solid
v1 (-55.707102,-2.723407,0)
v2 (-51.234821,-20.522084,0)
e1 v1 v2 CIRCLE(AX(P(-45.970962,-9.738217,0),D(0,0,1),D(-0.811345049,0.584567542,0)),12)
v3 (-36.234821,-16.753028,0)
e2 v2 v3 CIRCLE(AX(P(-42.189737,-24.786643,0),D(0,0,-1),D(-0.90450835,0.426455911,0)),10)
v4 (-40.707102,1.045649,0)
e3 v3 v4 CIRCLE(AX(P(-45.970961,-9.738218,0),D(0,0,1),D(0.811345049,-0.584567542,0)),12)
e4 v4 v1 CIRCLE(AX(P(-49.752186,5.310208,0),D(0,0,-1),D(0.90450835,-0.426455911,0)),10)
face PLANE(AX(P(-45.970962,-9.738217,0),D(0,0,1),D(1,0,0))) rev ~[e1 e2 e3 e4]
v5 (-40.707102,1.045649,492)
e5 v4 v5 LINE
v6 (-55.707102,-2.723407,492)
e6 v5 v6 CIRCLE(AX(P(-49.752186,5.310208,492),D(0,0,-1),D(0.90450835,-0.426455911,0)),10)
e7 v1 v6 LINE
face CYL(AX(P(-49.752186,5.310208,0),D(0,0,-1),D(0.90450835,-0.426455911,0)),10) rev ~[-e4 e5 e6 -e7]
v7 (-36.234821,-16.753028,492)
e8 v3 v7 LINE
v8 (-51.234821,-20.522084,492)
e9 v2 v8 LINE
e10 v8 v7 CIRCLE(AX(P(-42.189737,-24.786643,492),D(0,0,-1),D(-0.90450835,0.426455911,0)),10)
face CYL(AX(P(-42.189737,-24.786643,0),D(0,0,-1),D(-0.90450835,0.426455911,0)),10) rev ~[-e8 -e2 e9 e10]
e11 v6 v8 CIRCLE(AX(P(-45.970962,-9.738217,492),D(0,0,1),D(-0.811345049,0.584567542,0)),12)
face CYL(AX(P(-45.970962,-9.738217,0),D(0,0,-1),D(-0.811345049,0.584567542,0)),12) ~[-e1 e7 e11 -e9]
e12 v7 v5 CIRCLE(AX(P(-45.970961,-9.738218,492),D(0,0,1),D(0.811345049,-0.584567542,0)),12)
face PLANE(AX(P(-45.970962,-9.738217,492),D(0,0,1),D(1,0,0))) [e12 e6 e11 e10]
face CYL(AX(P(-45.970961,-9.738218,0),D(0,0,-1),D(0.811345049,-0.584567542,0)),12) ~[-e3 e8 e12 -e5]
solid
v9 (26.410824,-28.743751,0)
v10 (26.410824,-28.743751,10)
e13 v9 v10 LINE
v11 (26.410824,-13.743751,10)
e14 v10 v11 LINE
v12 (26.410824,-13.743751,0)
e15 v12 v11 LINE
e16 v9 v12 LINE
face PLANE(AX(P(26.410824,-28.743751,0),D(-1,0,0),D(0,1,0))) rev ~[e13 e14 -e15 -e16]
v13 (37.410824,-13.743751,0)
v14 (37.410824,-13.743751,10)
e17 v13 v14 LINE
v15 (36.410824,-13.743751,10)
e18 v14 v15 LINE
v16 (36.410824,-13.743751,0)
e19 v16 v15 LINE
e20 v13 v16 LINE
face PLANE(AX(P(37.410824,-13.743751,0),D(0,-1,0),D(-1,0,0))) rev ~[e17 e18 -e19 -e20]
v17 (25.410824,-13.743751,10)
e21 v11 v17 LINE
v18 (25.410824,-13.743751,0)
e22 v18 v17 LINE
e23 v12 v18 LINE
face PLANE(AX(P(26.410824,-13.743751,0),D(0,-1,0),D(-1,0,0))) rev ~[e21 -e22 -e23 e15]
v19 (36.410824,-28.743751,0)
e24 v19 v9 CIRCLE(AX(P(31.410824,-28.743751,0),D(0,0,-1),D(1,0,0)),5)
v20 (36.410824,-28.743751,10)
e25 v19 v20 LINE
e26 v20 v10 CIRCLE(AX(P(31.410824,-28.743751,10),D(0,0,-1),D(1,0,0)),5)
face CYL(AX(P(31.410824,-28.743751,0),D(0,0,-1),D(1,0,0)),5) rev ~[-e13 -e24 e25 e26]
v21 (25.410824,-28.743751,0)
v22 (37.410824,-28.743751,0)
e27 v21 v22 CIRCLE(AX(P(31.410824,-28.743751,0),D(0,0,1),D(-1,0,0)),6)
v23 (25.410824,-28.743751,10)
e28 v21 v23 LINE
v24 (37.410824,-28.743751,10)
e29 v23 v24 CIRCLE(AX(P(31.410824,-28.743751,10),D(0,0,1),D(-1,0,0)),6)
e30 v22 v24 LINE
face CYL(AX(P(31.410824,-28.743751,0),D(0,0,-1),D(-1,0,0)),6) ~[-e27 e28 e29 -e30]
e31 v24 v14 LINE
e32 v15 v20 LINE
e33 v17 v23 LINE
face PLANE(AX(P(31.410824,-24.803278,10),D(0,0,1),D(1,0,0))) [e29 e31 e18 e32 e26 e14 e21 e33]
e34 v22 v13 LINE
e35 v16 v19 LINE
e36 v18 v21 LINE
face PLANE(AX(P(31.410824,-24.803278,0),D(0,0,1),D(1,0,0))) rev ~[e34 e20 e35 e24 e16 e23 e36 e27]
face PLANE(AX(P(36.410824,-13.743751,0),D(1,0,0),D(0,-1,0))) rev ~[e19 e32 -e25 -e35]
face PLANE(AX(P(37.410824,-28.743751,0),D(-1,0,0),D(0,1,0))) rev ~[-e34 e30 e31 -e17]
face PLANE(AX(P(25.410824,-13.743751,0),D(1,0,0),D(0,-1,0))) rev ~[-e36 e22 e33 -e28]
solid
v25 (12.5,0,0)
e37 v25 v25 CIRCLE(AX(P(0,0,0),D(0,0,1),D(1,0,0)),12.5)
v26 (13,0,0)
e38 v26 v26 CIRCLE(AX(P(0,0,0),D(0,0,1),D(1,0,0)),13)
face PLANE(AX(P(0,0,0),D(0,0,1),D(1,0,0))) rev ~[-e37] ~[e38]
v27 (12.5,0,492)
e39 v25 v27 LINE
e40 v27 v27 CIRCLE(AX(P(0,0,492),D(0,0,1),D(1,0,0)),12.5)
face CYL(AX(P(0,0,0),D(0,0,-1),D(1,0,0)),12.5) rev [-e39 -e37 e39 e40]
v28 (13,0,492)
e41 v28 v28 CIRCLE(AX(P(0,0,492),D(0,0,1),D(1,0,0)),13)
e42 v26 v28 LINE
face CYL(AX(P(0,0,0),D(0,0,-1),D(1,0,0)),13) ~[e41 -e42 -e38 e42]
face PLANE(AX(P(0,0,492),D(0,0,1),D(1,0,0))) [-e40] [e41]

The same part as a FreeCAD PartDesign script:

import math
import FreeCAD as App
import Part
import Sketcher
Q = App.Units.Quantity

doc = App.newDocument("Part")
params = doc.addObject("Spreadsheet::Sheet", "Params")
for row, (alias, value) in enumerate([
    ("sketch1_diameter", "26 mm"),
    ("sketch1_diameter2", "25 mm"),
    ("sketch1_radius", "10 mm"),
    ("sketch1_radius2", "12 mm"),
    ("pad1_length", "492 mm"),
    ("sketch2_radius", "6 mm"),
    ("sketch2_radius2", "5 mm"),
    ("sketch2_height", "15 mm"),
    ("pad2_length", "10 mm"),
], start=1):
    params.set(f"A{row}", alias)
    params.set(f"B{row}", "=" + value)
    params.setAlias(f"B{row}", alias)

body = doc.addObject("PartDesign::Body", "Body")
body.AllowCompound = True

# Sketch on XY plane
sketch1 = doc.addObject("Sketcher::SketchObject", "Sketch")
body.addObject(sketch1)
sketch1.AttachmentSupport = (doc.XY_Plane, [""])
sketch1.MapMode = "FlatFace"
sketch1.addGeometry(Part.Circle(App.Vector(0, 0, 0), App.Vector(0, 0, 1), 13), False)
sketch1.addGeometry(Part.Circle(App.Vector(0, 0, 0), App.Vector(0, 0, 1), 12), False)
sketch1.addGeometry(Part.ArcOfCircle(Part.Circle(App.Vector(-50, 5, 0), App.Vector(0, 0, 1), 10), math.radians(-127), math.radians(-25)), False)
sketch1.addGeometry(Part.ArcOfCircle(Part.Circle(App.Vector(-46, -10, 0), App.Vector(0, 0, 1), 12), math.radians(144), math.radians(244)), False)
sketch1.addGeometry(Part.ArcOfCircle(Part.Circle(App.Vector(-42, -25, 0), App.Vector(0, 0, 1), 10), math.radians(53), math.radians(155)), False)
sketch1.addGeometry(Part.ArcOfCircle(Part.Circle(App.Vector(-46, -10, 0), App.Vector(0, 0, 1), 12), math.radians(-36), math.radians(64)), False)
sketch1.addConstraint(Sketcher.Constraint("Coincident", 2, 1, 3, 1))
sketch1.addConstraint(Sketcher.Constraint("Coincident", 3, 2, 4, 2))
sketch1.addConstraint(Sketcher.Constraint("Coincident", 4, 1, 5, 1))
sketch1.addConstraint(Sketcher.Constraint("Coincident", 5, 2, 2, 2))
sketch1.addConstraint(Sketcher.Constraint("Coincident", 0, 3, -1, 1))
sketch1.addConstraint(Sketcher.Constraint("Coincident", 1, 3, -1, 1))
sketch1.addConstraint(Sketcher.Constraint("Coincident", 5, 3, 3, 3))
sketch1.addConstraint(Sketcher.Constraint("Equal", 2, 4))
sketch1.addConstraint(Sketcher.Constraint("Equal", 3, 5))
sketch1.addConstraint(Sketcher.Constraint("Diameter", 0, Q("26 mm")))
sketch1.addConstraint(Sketcher.Constraint("Diameter", 1, Q("25 mm")))
sketch1.addConstraint(Sketcher.Constraint("Radius", 2, Q("10 mm")))
sketch1.addConstraint(Sketcher.Constraint("Radius", 3, Q("12 mm")))
sketch1.addConstraint(Sketcher.Constraint("DistanceX", 3, 2, 4, 1, Q("15 mm")))
sketch1.addConstraint(Sketcher.Constraint("DistanceX", 2, 1, 5, 2, Q("15 mm")))
sketch1.addConstraint(Sketcher.Constraint("DistanceX", 2, 1, -1, 1, Q("55.707102 mm")))
sketch1.addConstraint(Sketcher.Constraint("DistanceY", -1, 1, 2, 3, Q("5.310208 mm")))
sketch1.addConstraint(Sketcher.Constraint("DistanceX", 3, 3, -1, 1, Q("45.970962 mm")))
sketch1.addConstraint(Sketcher.Constraint("DistanceX", 3, 2, -1, 1, Q("51.234821 mm")))
sketch1.setExpression("Constraints[9]", "Params.sketch1_diameter")
sketch1.setExpression("Constraints[10]", "Params.sketch1_diameter2")
sketch1.setExpression("Constraints[11]", "Params.sketch1_radius")
sketch1.setExpression("Constraints[12]", "Params.sketch1_radius2")
pad1 = doc.addObject("PartDesign::Pad", "Pad")
body.addObject(pad1)
pad1.Profile = sketch1
pad1.setExpression("Length", "Params.pad1_length")
body2 = doc.addObject("PartDesign::Body", "Body001")

# Sketch on XY plane
sketch2 = doc.addObject("Sketcher::SketchObject", "Sketch001")
body2.addObject(sketch2)
sketch2.AttachmentSupport = (doc.getObject("XY_Plane001"), [""])
sketch2.MapMode = "FlatFace"
sketch2.addGeometry(Part.LineSegment(App.Vector(26.4, -28.7, 0), App.Vector(26.4, -13.7, 0)), False)
sketch2.addGeometry(Part.LineSegment(App.Vector(26.4, -13.7, 0), App.Vector(25.4, -13.7, 0)), False)
sketch2.addGeometry(Part.LineSegment(App.Vector(25.4, -13.7, 0), App.Vector(25.4, -28.7, 0)), False)
sketch2.addGeometry(Part.ArcOfCircle(Part.Circle(App.Vector(31.4, -28.7, 0), App.Vector(0, 0, 1), 6), math.radians(180), math.radians(360)), False)
sketch2.addGeometry(Part.LineSegment(App.Vector(37.4, -28.7, 0), App.Vector(37.4, -13.7, 0)), False)
sketch2.addGeometry(Part.LineSegment(App.Vector(37.4, -13.7, 0), App.Vector(36.4, -13.7, 0)), False)
sketch2.addGeometry(Part.LineSegment(App.Vector(36.4, -13.7, 0), App.Vector(36.4, -28.7, 0)), False)
sketch2.addGeometry(Part.ArcOfCircle(Part.Circle(App.Vector(31.4, -28.7, 0), App.Vector(0, 0, 1), 5), math.radians(180), math.radians(360)), False)
sketch2.addConstraint(Sketcher.Constraint("Coincident", 0, 2, 1, 1))
sketch2.addConstraint(Sketcher.Constraint("Coincident", 1, 2, 2, 1))
sketch2.addConstraint(Sketcher.Constraint("Tangent", 2, 2, 3, 1))
sketch2.addConstraint(Sketcher.Constraint("Tangent", 3, 2, 4, 1))
sketch2.addConstraint(Sketcher.Constraint("Coincident", 4, 2, 5, 1))
sketch2.addConstraint(Sketcher.Constraint("Coincident", 5, 2, 6, 1))
sketch2.addConstraint(Sketcher.Constraint("Tangent", 6, 2, 7, 2))
sketch2.addConstraint(Sketcher.Constraint("Tangent", 7, 1, 0, 1))
sketch2.addConstraint(Sketcher.Constraint("Vertical", 0))
sketch2.addConstraint(Sketcher.Constraint("Horizontal", 1))
sketch2.addConstraint(Sketcher.Constraint("Vertical", 2))
sketch2.addConstraint(Sketcher.Constraint("Vertical", 4))
sketch2.addConstraint(Sketcher.Constraint("Horizontal", 5))
sketch2.addConstraint(Sketcher.Constraint("Vertical", 6))
sketch2.addConstraint(Sketcher.Constraint("Coincident", 7, 3, 3, 3))
sketch2.addConstraint(Sketcher.Constraint("Horizontal", 1, 2, 4, 2))
sketch2.addConstraint(Sketcher.Constraint("Radius", 3, Q("6 mm")))
sketch2.addConstraint(Sketcher.Constraint("Radius", 7, Q("5 mm")))
sketch2.addConstraint(Sketcher.Constraint("DistanceY", 0, 1, 0, 2, Q("15 mm")))
sketch2.addConstraint(Sketcher.Constraint("DistanceY", 3, 3, -1, 1, Q("28.743751 mm")))
sketch2.addConstraint(Sketcher.Constraint("DistanceX", -1, 1, 3, 3, Q("31.410824 mm")))
sketch2.setExpression("Constraints[16]", "Params.sketch2_radius")
sketch2.setExpression("Constraints[17]", "Params.sketch2_radius2")
sketch2.setExpression("Constraints[18]", "Params.sketch2_height")
pad2 = doc.addObject("PartDesign::Pad", "Pad001")
body2.addObject(pad2)
pad2.Profile = sketch2
pad2.setExpression("Length", "Params.pad2_length")

doc.recompute()
